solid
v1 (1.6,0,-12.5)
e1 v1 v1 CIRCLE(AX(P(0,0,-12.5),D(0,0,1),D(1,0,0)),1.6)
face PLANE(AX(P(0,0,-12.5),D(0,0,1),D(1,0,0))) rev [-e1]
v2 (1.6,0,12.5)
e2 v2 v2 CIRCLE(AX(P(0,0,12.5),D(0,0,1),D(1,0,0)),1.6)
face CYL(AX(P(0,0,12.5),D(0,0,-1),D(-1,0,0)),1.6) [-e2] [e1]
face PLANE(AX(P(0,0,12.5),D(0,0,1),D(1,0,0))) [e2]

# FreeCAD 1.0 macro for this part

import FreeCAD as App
import Part
import Sketcher

V = App.Vector

doc = App.newDocument("Part")
body = doc.addObject("PartDesign::Body", "Body")

sketch1 = body.newObject("Sketcher::SketchObject", "Sketch")
sketch1.AttachmentSupport = (doc.getObject("XY_Plane"), [""])
sketch1.MapMode = "FlatFace"
sketch1.addGeometry(Part.Circle(V(0, 0, 0), V(0, 0, 1), 1.6), False)
sketch1.addConstraint([
    Sketcher.Constraint("Coincident", 0, 3, -1, 1),
    Sketcher.Constraint("Diameter", 0, 3.2),
])
pad1 = body.newObject("PartDesign::Pad", "Pad")
pad1.Profile = sketch1
pad1.Length = 25
pad1.Midplane = True

doc.recompute()
